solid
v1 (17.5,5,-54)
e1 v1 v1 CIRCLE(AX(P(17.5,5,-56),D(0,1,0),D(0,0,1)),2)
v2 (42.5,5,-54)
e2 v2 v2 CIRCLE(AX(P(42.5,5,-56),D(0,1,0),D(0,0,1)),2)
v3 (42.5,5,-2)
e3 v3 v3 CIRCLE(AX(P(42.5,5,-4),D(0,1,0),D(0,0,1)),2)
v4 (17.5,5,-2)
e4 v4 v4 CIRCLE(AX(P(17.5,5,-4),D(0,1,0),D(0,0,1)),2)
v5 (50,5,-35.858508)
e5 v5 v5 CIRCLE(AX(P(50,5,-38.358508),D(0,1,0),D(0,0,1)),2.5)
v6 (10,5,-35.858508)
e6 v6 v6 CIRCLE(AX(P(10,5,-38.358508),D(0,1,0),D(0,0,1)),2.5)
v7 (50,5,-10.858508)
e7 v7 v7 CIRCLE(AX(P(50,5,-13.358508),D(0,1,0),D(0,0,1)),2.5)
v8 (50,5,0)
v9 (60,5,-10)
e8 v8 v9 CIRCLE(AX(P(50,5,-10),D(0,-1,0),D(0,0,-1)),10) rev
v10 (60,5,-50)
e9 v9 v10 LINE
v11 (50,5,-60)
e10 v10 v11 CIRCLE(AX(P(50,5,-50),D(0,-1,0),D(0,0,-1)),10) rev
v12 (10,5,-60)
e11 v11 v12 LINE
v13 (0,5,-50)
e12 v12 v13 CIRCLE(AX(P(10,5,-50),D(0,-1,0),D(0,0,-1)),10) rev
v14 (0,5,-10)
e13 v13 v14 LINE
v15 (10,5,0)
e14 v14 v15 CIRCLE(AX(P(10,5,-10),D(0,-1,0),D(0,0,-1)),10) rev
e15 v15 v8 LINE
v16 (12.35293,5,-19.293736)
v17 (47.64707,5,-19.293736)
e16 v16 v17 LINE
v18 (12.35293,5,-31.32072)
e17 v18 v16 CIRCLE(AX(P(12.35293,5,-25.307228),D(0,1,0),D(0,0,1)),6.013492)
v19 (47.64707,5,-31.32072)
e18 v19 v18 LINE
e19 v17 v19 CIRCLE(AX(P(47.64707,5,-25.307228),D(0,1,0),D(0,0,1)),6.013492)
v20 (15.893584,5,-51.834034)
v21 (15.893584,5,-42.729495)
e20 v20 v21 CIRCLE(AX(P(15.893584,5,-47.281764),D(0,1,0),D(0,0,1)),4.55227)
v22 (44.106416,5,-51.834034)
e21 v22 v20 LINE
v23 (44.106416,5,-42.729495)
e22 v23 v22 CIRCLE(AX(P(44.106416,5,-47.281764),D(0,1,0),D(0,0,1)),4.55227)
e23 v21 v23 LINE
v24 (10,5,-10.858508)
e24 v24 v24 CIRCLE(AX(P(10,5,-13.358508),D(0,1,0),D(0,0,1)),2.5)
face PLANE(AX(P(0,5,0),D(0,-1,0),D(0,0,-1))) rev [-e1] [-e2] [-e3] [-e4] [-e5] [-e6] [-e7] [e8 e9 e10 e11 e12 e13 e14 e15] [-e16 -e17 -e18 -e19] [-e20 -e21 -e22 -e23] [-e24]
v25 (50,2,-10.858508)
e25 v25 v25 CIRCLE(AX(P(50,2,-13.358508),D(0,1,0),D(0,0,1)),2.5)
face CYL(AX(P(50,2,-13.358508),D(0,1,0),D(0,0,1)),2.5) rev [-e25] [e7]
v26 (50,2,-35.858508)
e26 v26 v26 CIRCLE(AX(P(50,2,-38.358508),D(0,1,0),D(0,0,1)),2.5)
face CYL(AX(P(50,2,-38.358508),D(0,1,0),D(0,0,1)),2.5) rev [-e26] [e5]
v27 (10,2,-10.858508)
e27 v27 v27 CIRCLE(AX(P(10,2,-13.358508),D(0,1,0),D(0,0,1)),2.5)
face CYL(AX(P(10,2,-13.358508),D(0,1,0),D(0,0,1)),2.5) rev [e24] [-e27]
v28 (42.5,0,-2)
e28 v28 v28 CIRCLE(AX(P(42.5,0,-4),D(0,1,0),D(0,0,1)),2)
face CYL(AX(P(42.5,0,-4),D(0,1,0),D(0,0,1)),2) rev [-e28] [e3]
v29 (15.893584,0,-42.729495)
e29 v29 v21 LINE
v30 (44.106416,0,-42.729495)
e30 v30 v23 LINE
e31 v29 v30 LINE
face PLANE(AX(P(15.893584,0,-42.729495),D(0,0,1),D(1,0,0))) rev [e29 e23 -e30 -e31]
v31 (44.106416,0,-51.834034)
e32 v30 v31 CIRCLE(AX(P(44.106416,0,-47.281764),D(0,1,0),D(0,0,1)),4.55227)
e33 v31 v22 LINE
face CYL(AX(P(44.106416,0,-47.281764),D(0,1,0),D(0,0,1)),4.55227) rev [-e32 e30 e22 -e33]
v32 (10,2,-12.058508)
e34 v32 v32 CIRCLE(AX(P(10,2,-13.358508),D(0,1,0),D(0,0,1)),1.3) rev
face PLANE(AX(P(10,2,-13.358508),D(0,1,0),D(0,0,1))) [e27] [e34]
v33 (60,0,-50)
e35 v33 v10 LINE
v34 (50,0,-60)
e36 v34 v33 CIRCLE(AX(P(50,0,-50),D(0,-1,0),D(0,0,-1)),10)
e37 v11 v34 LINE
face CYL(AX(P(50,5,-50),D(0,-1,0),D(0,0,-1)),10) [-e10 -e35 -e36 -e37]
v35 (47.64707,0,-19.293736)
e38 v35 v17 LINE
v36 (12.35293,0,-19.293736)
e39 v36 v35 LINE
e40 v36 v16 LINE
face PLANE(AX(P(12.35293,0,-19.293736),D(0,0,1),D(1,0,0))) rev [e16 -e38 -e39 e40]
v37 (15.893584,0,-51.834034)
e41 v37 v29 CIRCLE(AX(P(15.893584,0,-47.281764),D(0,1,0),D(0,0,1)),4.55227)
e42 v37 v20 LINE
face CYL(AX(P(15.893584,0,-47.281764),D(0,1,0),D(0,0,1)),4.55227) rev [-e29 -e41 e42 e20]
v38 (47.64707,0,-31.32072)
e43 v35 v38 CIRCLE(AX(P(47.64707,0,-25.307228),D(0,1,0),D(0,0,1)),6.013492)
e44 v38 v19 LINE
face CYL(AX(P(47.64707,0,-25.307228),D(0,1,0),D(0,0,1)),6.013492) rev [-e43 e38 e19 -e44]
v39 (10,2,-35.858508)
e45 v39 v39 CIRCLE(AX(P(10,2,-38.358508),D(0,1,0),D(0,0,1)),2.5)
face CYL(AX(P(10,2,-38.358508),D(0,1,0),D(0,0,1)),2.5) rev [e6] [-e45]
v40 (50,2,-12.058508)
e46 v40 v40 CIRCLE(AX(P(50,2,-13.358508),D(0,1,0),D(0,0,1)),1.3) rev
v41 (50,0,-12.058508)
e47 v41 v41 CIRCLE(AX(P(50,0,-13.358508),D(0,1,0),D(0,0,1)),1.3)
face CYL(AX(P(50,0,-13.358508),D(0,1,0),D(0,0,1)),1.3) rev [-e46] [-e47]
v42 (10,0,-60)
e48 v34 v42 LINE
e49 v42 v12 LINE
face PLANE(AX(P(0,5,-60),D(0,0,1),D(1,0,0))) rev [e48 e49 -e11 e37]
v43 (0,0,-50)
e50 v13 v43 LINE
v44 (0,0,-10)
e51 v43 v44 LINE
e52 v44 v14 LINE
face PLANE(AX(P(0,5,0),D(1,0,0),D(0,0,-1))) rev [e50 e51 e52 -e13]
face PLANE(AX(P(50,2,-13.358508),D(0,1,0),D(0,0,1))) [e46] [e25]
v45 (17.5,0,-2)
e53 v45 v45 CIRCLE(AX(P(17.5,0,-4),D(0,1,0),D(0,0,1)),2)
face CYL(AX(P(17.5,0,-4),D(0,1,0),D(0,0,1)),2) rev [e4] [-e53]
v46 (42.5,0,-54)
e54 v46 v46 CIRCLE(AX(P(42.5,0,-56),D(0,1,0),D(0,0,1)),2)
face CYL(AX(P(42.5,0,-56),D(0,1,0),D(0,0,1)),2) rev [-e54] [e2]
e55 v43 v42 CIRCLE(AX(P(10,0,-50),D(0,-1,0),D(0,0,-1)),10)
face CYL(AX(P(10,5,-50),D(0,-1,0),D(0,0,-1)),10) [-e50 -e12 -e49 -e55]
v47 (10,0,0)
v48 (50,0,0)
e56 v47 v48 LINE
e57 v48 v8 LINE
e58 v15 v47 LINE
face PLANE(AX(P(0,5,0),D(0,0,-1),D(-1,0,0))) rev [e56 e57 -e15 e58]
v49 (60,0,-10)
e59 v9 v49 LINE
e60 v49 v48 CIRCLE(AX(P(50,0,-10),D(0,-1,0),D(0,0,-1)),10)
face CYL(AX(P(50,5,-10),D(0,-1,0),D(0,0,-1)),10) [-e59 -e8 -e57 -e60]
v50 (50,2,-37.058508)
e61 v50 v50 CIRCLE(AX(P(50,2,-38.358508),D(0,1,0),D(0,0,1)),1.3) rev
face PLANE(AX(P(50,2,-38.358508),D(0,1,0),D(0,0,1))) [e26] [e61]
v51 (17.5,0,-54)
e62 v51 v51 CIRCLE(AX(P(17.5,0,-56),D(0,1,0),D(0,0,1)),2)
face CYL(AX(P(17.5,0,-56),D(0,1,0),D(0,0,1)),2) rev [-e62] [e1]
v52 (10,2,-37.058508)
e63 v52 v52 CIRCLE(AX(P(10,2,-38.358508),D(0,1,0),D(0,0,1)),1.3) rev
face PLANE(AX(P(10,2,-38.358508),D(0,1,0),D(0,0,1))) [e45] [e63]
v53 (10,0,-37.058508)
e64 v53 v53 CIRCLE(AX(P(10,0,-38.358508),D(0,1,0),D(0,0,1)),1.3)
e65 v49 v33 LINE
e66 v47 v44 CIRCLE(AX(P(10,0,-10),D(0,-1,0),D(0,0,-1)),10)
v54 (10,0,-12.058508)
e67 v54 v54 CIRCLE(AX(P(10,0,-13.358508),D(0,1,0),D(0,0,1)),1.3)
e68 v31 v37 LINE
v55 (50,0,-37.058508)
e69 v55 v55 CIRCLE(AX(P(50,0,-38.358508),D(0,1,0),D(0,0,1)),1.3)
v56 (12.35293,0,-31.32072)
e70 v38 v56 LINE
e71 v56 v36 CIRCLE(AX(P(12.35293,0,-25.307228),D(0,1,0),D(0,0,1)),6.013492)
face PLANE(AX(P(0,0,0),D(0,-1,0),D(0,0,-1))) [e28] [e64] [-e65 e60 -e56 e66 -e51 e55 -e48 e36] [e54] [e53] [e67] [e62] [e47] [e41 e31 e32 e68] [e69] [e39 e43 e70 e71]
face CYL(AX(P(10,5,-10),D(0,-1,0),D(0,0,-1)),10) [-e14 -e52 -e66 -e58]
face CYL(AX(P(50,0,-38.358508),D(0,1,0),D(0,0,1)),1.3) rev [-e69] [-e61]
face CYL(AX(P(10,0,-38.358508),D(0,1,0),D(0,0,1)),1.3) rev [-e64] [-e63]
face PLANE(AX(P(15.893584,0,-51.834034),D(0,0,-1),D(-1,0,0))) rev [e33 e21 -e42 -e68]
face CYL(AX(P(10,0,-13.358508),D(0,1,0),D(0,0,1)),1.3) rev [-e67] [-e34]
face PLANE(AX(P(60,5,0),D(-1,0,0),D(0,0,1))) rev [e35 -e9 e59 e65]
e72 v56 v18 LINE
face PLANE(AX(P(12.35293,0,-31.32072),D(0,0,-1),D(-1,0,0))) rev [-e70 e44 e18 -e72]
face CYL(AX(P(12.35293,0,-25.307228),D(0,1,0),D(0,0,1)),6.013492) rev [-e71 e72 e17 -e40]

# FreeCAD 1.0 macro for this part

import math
import FreeCAD as App
import Part
import Sketcher
Q = App.Units.Quantity


def edges_at(feature, points):
    """Names of the edges that pass closest to the given points."""
    edges = feature.Shape.Edges
    near = lambda p: min(range(len(edges)), key=lambda i: edges[i].distToShape(Part.Vertex(*p))[0])
    return sorted({f"Edge{near(p) + 1}" for p in points})

doc = App.newDocument("Part")
body = doc.addObject("PartDesign::Body", "Body")

# Sketch on XZ plane
sketch1 = body.newObject("Sketcher::SketchObject", "Sketch")
sketch1.AttachmentSupport = (doc.getObject("XZ_Plane"), [""])
sketch1.MapMode = "FlatFace"
sketch1.addGeometry([
    Part.LineSegment(App.Vector(0, -60, 0), App.Vector(0, 0, 0)),
    Part.LineSegment(App.Vector(0, 0, 0), App.Vector(60, 0, 0)),
    Part.LineSegment(App.Vector(60, 0, 0), App.Vector(60, -60, 0)),
    Part.LineSegment(App.Vector(60, -60, 0), App.Vector(0, -60, 0)),
], False)
sketch1.addConstraint([
    Sketcher.Constraint("Coincident", 0, 2, 1, 1),
    Sketcher.Constraint("Coincident", 1, 2, 2, 1),
    Sketcher.Constraint("Coincident", 2, 2, 3, 1),
    Sketcher.Constraint("Coincident", 3, 2, 0, 1),
    Sketcher.Constraint("Vertical", 0),
    Sketcher.Constraint("Horizontal", 1),
    Sketcher.Constraint("Vertical", 2),
    Sketcher.Constraint("Horizontal", 3),
    Sketcher.Constraint("Coincident", 0, 2, -1, 1),
    Sketcher.Constraint("Equal", 3, 0),
    Sketcher.Constraint("DistanceX", 1, 1, 1, 2, Q("60 mm")),
])
pad1 = body.newObject("PartDesign::Pad", "Pad")
pad1.Profile = sketch1
pad1.Length = 5
pad1.Reversed = True

# Sketch on XZ plane
sketch2 = body.newObject("Sketcher::SketchObject", "Sketch001")
sketch2.AttachmentSupport = (doc.getObject("XZ_Plane"), [""])
sketch2.MapMode = "FlatFace"
sketch2.AttachmentOffset = App.Placement(App.Vector(0, 0, -5), App.Rotation())
sketch2.addGeometry([
    Part.Circle(App.Vector(17.5, -56, 0), App.Vector(0, 0, 1), 2),  # 0
    Part.Circle(App.Vector(17.5, -4, 0), App.Vector(0, 0, 1), 2),  # 1
    Part.Circle(App.Vector(42.5, -4, 0), App.Vector(0, 0, 1), 2),  # 2
    Part.Circle(App.Vector(42.5, -56, 0), App.Vector(0, 0, 1), 2),  # 3
    Part.Circle(App.Vector(10, -38.358508, 0), App.Vector(0, 0, 1), 1.3),  # 4
    Part.Circle(App.Vector(10, -13.358508, 0), App.Vector(0, 0, 1), 1.3),  # 5
    Part.Circle(App.Vector(50, -13.358508, 0), App.Vector(0, 0, 1), 1.3),  # 6
    Part.Circle(App.Vector(50, -38.358508, 0), App.Vector(0, 0, 1), 1.3),  # 7
], False)
sketch2.addConstraint([
    Sketcher.Constraint("Equal", 0, 1),
    Sketcher.Constraint("Equal", 1, 2),
    Sketcher.Constraint("Equal", 2, 3),
    Sketcher.Constraint("Equal", 4, 5),
    Sketcher.Constraint("Equal", 5, 6),
    Sketcher.Constraint("Equal", 6, 7),
    Sketcher.Constraint("Horizontal", 1, 3, 2, 3),
    Sketcher.Constraint("Horizontal", 0, 3, 3, 3),
    Sketcher.Constraint("Horizontal", 5, 3, 6, 3),
    Sketcher.Constraint("Horizontal", 4, 3, 7, 3),
    Sketcher.Constraint("Vertical", 0, 3, 1, 3),
    Sketcher.Constraint("Vertical", 2, 3, 3, 3),
    Sketcher.Constraint("Vertical", 4, 3, 5, 3),
    Sketcher.Constraint("Vertical", 6, 3, 7, 3),
    Sketcher.Constraint("Diameter", 0, Q("4 mm")),
    Sketcher.Constraint("Diameter", 4, Q("2.6 mm")),
    Sketcher.Constraint("DistanceY", 0, 3, -1, 1, Q("56 mm")),
    Sketcher.Constraint("DistanceY", 1, 3, -1, 1, Q("4 mm")),
    Sketcher.Constraint("DistanceX", -1, 1, 4, 3, Q("10 mm")),
    Sketcher.Constraint("DistanceX", -1, 1, 6, 3, Q("50 mm")),
    Sketcher.Constraint("DistanceX", 1, 3, 2, 3, Q("25 mm")),
    Sketcher.Constraint("DistanceY", 4, 3, 5, 3, Q("25 mm")),
    Sketcher.Constraint("DistanceX", -1, 1, 0, 3, Q("17.5 mm")),
    Sketcher.Constraint("DistanceY", 4, 3, -1, 1, Q("38.358508 mm")),
])
pocket1 = body.newObject("PartDesign::Pocket", "Pocket")
pocket1.Profile = sketch2
pocket1.Type = "ThroughAll"
pocket1.Reversed = True

# Sketch on XZ plane
sketch3 = body.newObject("Sketcher::SketchObject", "Sketch002")
sketch3.AttachmentSupport = (doc.getObject("XZ_Plane"), [""])
sketch3.MapMode = "FlatFace"
sketch3.AttachmentOffset = App.Placement(App.Vector(0, 0, -5), App.Rotation())
sketch3.addGeometry([
    Part.Circle(App.Vector(10, -38.358508, 0), App.Vector(0, 0, 1), 2.5),
    Part.Circle(App.Vector(10, -13.358508, 0), App.Vector(0, 0, 1), 2.5),
    Part.Circle(App.Vector(50, -13.358508, 0), App.Vector(0, 0, 1), 2.5),
    Part.Circle(App.Vector(50, -38.358508, 0), App.Vector(0, 0, 1), 2.5),
], False)
sketch3.addConstraint([
    Sketcher.Constraint("Equal", 0, 1),
    Sketcher.Constraint("Equal", 1, 2),
    Sketcher.Constraint("Equal", 2, 3),
    Sketcher.Constraint("Horizontal", 1, 3, 2, 3),
    Sketcher.Constraint("Horizontal", 0, 3, 3, 3),
    Sketcher.Constraint("Vertical", 0, 3, 1, 3),
    Sketcher.Constraint("Vertical", 2, 3, 3, 3),
    Sketcher.Constraint("Diameter", 0, Q("5 mm")),
    Sketcher.Constraint("DistanceX", -1, 1, 0, 3, Q("10 mm")),
    Sketcher.Constraint("DistanceX", -1, 1, 2, 3, Q("50 mm")),
    Sketcher.Constraint("DistanceY", 0, 3, 1, 3, Q("25 mm")),
    Sketcher.Constraint("DistanceY", 0, 3, -1, 1, Q("38.358508 mm")),
])
pocket2 = body.newObject("PartDesign::Pocket", "Pocket001")
pocket2.Profile = sketch3
pocket2.Length = 3
pocket2.Reversed = True
doc.recompute()

fillet = body.newObject("PartDesign::Fillet", "Fillet")
fillet.Base = (pocket2, edges_at(pocket2, [
    (0, 2.5, -60),
    (60, 2.5, -60),
    (60, 2.5, 0),
    (0, 2.5, 0),
]))
fillet.Radius = 10

# Sketch on XZ plane
sketch4 = body.newObject("Sketcher::SketchObject", "Sketch003")
sketch4.AttachmentSupport = (doc.getObject("XZ_Plane"), [""])
sketch4.MapMode = "FlatFace"
sketch4.AttachmentOffset = App.Placement(App.Vector(0, 0, -5), App.Rotation())
sketch4.addGeometry([
    Part.LineSegment(App.Vector(44.106416, -51.834034, 0), App.Vector(15.893584, -51.834034, 0)),  # 0
    Part.ArcOfCircle(Part.Circle(App.Vector(15.893584, -47.281764, 0), App.Vector(0, 0, 1), 4.55227), math.radians(90), math.radians(270)),  # 1
    Part.LineSegment(App.Vector(15.893584, -42.729495, 0), App.Vector(44.106416, -42.729495, 0)),  # 2
    Part.ArcOfCircle(Part.Circle(App.Vector(44.106416, -47.281764, 0), App.Vector(0, 0, 1), 4.55227), math.radians(-90), math.radians(90)),  # 3
    Part.LineSegment(App.Vector(47.64707, -31.32072, 0), App.Vector(12.35293, -31.32072, 0)),  # 4
    Part.ArcOfCircle(Part.Circle(App.Vector(12.35293, -25.307228, 0), App.Vector(0, 0, 1), 6.013492), math.radians(90), math.radians(270)),  # 5
    Part.LineSegment(App.Vector(12.35293, -19.293736, 0), App.Vector(47.64707, -19.293736, 0)),  # 6
    Part.ArcOfCircle(Part.Circle(App.Vector(47.64707, -25.307228, 0), App.Vector(0, 0, 1), 6.013492), math.radians(-90), math.radians(90)),  # 7
], False)
sketch4.addConstraint([
    Sketcher.Constraint("Tangent", 0, 2, 1, 2),
    Sketcher.Constraint("Tangent", 1, 1, 2, 1),
    Sketcher.Constraint("Tangent", 2, 2, 3, 2),
    Sketcher.Constraint("Tangent", 3, 1, 0, 1),
    Sketcher.Constraint("Tangent", 4, 2, 5, 2),
    Sketcher.Constraint("Tangent", 5, 1, 6, 1),
    Sketcher.Constraint("Tangent", 6, 2, 7, 2),
    Sketcher.Constraint("Tangent", 7, 1, 4, 1),
    Sketcher.Constraint("Horizontal", 0),
    Sketcher.Constraint("Horizontal", 2),
    Sketcher.Constraint("Horizontal", 4),
    Sketcher.Constraint("Horizontal", 6),
    Sketcher.Constraint("Radius", 1, Q("4.55227 mm")),
    Sketcher.Constraint("Radius", 5, Q("6.013492 mm")),
    Sketcher.Constraint("DistanceX", 0, 2, 0, 1, Q("28.212831 mm")),
    Sketcher.Constraint("DistanceX", 4, 2, 4, 1, Q("35.29414 mm")),
    Sketcher.Constraint("DistanceX", -1, 1, 5, 3, Q("12.35293 mm")),
    Sketcher.Constraint("DistanceY", 5, 3, -1, 1, Q("25.307228 mm")),
    Sketcher.Constraint("DistanceY", 1, 1, 5, 1, Q("23.435758 mm")),
    Sketcher.Constraint("DistanceX", -1, 1, 1, 3, Q("15.893584 mm")),
])
pocket3 = body.newObject("PartDesign::Pocket", "Pocket002")
pocket3.Profile = sketch4
pocket3.Type = "ThroughAll"
pocket3.Reversed = True

doc.recompute()
